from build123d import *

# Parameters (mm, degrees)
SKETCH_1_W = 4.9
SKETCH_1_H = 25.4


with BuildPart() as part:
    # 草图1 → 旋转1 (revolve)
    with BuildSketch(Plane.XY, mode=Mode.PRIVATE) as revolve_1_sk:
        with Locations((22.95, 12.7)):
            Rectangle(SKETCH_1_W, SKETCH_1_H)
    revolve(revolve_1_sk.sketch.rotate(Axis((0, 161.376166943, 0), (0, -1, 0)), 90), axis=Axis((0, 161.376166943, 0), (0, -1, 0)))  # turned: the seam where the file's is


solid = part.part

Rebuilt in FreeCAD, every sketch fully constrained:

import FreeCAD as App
import Part
import Sketcher

V = App.Vector

doc = App.newDocument("Part")
body = doc.addObject("PartDesign::Body", "Body")

sketch1 = body.newObject("Sketcher::SketchObject", "Sketch")
sketch1.AttachmentSupport = (doc.getObject("XY_Plane"), [""])
sketch1.MapMode = "FlatFace"
sketch1.addGeometry([
    Part.LineSegment(V(20.5, 25.4, 0), V(20.5, 0, 0)),
    Part.LineSegment(V(20.5, 0, 0), V(25.4, 0, 0)),
    Part.LineSegment(V(25.4, 0, 0), V(25.4, 25.4, 0)),
    Part.LineSegment(V(25.4, 25.4, 0), V(20.5, 25.4, 0)),
], False)
sketch1.addConstraint([
    Sketcher.Constraint("Coincident", 0, 2, 1, 1),
    Sketcher.Constraint("Coincident", 1, 2, 2, 1),
    Sketcher.Constraint("Coincident", 2, 2, 3, 1),
    Sketcher.Constraint("Coincident", 3, 2, 0, 1),
    Sketcher.Constraint("Vertical", 0),
    Sketcher.Constraint("Horizontal", 1),
    Sketcher.Constraint("Vertical", 2),
    Sketcher.Constraint("Horizontal", 3),
    Sketcher.Constraint("PointOnObject", 0, 2, -1),
    Sketcher.Constraint("DistanceX", 1, 1, 1, 2, 4.9),
    Sketcher.Constraint("DistanceY", 0, 2, 0, 1, 25.4),
    Sketcher.Constraint("DistanceX", -1, 1, 0, 2, 20.5),
])
revolution = body.newObject("PartDesign::Revolution", "Revolution")
revolution.Profile = sketch1
revolution.ReferenceAxis = (sketch1, ["V_Axis"])
revolution.Angle = 360

doc.recompute()
